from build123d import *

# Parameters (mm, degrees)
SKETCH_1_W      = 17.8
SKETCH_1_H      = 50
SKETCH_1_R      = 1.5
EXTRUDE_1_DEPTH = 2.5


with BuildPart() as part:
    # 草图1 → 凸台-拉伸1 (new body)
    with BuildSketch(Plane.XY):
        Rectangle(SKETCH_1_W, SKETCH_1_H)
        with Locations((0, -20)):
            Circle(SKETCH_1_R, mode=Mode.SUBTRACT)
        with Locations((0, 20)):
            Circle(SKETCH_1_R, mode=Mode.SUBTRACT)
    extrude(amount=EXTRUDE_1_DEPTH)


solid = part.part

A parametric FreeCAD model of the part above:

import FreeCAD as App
import Part
import Sketcher


def add_polygon(sketch, points):
    """Adds a closed chain of lines whose ends are joined by coincident constraints."""
    first, n = sketch.GeometryCount, len(points)
    for a, b in zip(points, points[1:] + points[:1]):
        sketch.addGeometry(Part.LineSegment(App.Vector(*a, 0), App.Vector(*b, 0)), False)
    for i in range(n):
        sketch.addConstraint(Sketcher.Constraint("Coincident", first + i, 2, first + (i + 1) % n, 1))

doc = App.newDocument("Part")
body = doc.addObject("PartDesign::Body", "Body")

sketch1 = body.newObject("Sketcher::SketchObject", "Sketch")
sketch1.AttachmentSupport = (doc.getObject("XY_Plane"), [""])
sketch1.MapMode = "FlatFace"
add_polygon(sketch1, [(-8.9, 25), (-8.9, -25), (8.9, -25), (8.9, 25)])
sketch1.addGeometry(Part.Circle(App.Vector(0, -20, 0), App.Vector(0, 0, 1), 1.5), False)
sketch1.addGeometry(Part.Circle(App.Vector(0, 20, 0), App.Vector(0, 0, 1), 1.5), False)
sketch1.addConstraint([
    Sketcher.Constraint("Vertical", 0),
    Sketcher.Constraint("Horizontal", 1),
    Sketcher.Constraint("Vertical", 2),
    Sketcher.Constraint("Horizontal", 3),
    Sketcher.Constraint("Equal", 4, 5),
    Sketcher.Constraint("Symmetric", 4, 3, 5, 3, -1, 1),
    Sketcher.Constraint("Symmetric", 0, 2, 2, 2, -1, 1),
    Sketcher.Constraint("PointOnObject", 4, 3, -2),
    Sketcher.Constraint("Diameter", 4, 3.0),
    Sketcher.Constraint("DistanceY", 0, 2, 0, 1, 50.0),
    Sketcher.Constraint("DistanceX", 1, 1, 1, 2, 17.8),
    Sketcher.Constraint("DistanceY", 4, 3, -1, 1, 20.0),
])
pad1 = body.newObject("PartDesign::Pad", "Pad")
pad1.Profile = sketch1
pad1.Length = 2.5

doc.recompute()
